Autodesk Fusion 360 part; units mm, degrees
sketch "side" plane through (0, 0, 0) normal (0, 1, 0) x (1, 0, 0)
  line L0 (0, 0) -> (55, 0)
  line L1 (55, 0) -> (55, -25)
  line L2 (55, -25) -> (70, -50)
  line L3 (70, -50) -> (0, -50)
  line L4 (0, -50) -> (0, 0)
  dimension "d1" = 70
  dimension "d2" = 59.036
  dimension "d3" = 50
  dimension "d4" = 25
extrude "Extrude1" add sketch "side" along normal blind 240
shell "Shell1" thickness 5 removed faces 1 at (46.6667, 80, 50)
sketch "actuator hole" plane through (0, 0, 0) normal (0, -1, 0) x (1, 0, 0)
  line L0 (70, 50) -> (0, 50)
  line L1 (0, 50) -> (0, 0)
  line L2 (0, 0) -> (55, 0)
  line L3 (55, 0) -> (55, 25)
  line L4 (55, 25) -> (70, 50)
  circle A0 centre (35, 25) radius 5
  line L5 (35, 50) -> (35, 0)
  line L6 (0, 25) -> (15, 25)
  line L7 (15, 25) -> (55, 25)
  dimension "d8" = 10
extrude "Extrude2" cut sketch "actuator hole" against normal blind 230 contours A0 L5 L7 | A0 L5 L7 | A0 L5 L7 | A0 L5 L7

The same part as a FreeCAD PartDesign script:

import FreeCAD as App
import Part
import Sketcher

V = App.Vector
Q = App.Units.Quantity


def faces_at(feature, points):
    """Names of the faces that lie closest to the given points."""
    faces = feature.Shape.Faces
    near = lambda p: min(range(len(faces)), key=lambda i: faces[i].distToShape(Part.Vertex(*p))[0])
    return sorted({f"Face{near(p) + 1}" for p in points})

doc = App.newDocument("Part")
body = doc.addObject("PartDesign::Body", "Body")

# Sketch on XZ plane
sketch1 = body.newObject("Sketcher::SketchObject", "Sketch")
sketch1.AttachmentSupport = (doc.getObject("XZ_Plane"), [""])
sketch1.MapMode = "FlatFace"
sketch1.addGeometry(Part.LineSegment(V(55, 0, 0), V(0, 0, 0)), False)
sketch1.addGeometry(Part.LineSegment(V(0, 0, 0), V(0, 50, 0)), False)
sketch1.addGeometry(Part.LineSegment(V(0, 50, 0), V(70, 50, 0)), False)
sketch1.addGeometry(Part.LineSegment(V(70, 50, 0), V(55, 25, 0)), False)
sketch1.addGeometry(Part.LineSegment(V(55, 25, 0), V(55, 0, 0)), False)
sketch1.addConstraint(Sketcher.Constraint("Coincident", 0, 2, 1, 1))
sketch1.addConstraint(Sketcher.Constraint("Coincident", 1, 2, 2, 1))
sketch1.addConstraint(Sketcher.Constraint("Coincident", 2, 2, 3, 1))
sketch1.addConstraint(Sketcher.Constraint("Coincident", 3, 2, 4, 1))
sketch1.addConstraint(Sketcher.Constraint("Coincident", 4, 2, 0, 1))
sketch1.addConstraint(Sketcher.Constraint("Horizontal", 0))
sketch1.addConstraint(Sketcher.Constraint("Vertical", 1))
sketch1.addConstraint(Sketcher.Constraint("Horizontal", 2))
sketch1.addConstraint(Sketcher.Constraint("Vertical", 4))
sketch1.addConstraint(Sketcher.Constraint("Coincident", 0, 2, -1, 1))
sketch1.addConstraint(Sketcher.Constraint("DistanceX", 2, 1, 2, 2, Q("70 mm")))
sketch1.addConstraint(Sketcher.Constraint("DistanceY", 1, 1, 1, 2, Q("50 mm")))
sketch1.addConstraint(Sketcher.Constraint("DistanceY", 4, 2, 4, 1, Q("25 mm")))
sketch1.addConstraint(Sketcher.Constraint("DistanceX", 0, 2, 0, 1, Q("55 mm")))
pad1 = body.newObject("PartDesign::Pad", "Pad")
pad1.Profile = sketch1
pad1.Length = 240
pad1.Reversed = True
doc.recompute()

thickness = body.newObject("PartDesign::Thickness", "Thickness")
thickness.Base = (pad1, faces_at(pad1, [(46.667, 80, 50)]))
thickness.Value = 5
thickness.Reversed = True
thickness.Join = "Intersection"

# Sketch on XZ plane
sketch2 = body.newObject("Sketcher::SketchObject", "Sketch001")
sketch2.AttachmentSupport = (doc.getObject("XZ_Plane"), [""])
sketch2.MapMode = "FlatFace"
sketch2.addGeometry(Part.Circle(V(35, 25, 0), V(0, 0, 1), 5), False)
sketch2.addConstraint(Sketcher.Constraint("Diameter", 0, Q("10 mm")))
sketch2.addConstraint(Sketcher.Constraint("DistanceX", -1, 1, 0, 3, Q("35 mm")))
sketch2.addConstraint(Sketcher.Constraint("DistanceY", -1, 1, 0, 3, Q("25 mm")))
pocket1 = body.newObject("PartDesign::Pocket", "Pocket")
pocket1.Profile = sketch2
pocket1.Length = 230

doc.recompute()
